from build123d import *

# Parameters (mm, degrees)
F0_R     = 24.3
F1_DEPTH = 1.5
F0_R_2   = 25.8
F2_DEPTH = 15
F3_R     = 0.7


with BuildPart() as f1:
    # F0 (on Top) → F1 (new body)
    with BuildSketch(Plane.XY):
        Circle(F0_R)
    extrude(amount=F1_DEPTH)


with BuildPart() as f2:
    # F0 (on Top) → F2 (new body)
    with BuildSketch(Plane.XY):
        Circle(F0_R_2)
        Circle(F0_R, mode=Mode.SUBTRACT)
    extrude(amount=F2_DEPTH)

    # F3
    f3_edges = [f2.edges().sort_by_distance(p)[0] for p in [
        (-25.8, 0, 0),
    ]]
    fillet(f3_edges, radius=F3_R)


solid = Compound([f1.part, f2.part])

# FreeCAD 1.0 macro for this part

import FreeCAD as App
import Part
import Sketcher
from FreeCAD import Vector
Q = App.Units.Quantity


def edges_at(feature, points):
    """Names of the edges that pass closest to the given points."""
    edges = feature.Shape.Edges
    near = lambda p: min(range(len(edges)), key=lambda i: edges[i].distToShape(Part.Vertex(*p))[0])
    return sorted({f"Edge{near(p) + 1}" for p in points})

doc = App.newDocument("Part")
body = doc.addObject("PartDesign::Body", "Body")

sketch1 = body.newObject("Sketcher::SketchObject", "Sketch")
sketch1.AttachmentSupport = (doc.getObject("XY_Plane"), [""])
sketch1.MapMode = "FlatFace"
sketch1.addGeometry(Part.Circle(Vector(0, 0, 0), Vector(0, 0, 1), 24.3), False)
sketch1.addConstraint([
    Sketcher.Constraint("Coincident", 0, 3, -1, 1),
    Sketcher.Constraint("Diameter", 0, Q("48.6 mm")),
])
pad1 = body.newObject("PartDesign::Pad", "Pad")
pad1.Profile = sketch1
pad1.Length = 1.5
body2 = doc.addObject("PartDesign::Body", "Body001")

sketch2 = body2.newObject("Sketcher::SketchObject", "Sketch001")
sketch2.AttachmentSupport = (doc.getObject("XY_Plane001"), [""])
sketch2.MapMode = "FlatFace"
sketch2.addGeometry([
    Part.Circle(Vector(0, 0, 0), Vector(0, 0, 1), 25.8),
    Part.Circle(Vector(0, 0, 0), Vector(0, 0, 1), 24.3),
], False)
sketch2.addConstraint([
    Sketcher.Constraint("Coincident", 0, 3, -1, 1),
    Sketcher.Constraint("Coincident", 1, 3, -1, 1),
    Sketcher.Constraint("Diameter", 0, Q("51.6 mm")),
    Sketcher.Constraint("Diameter", 1, Q("48.6 mm")),
])
pad2 = body2.newObject("PartDesign::Pad", "Pad001")
pad2.Profile = sketch2
pad2.Length = 15
doc.recompute()

fillet = body2.newObject("PartDesign::Fillet", "Fillet")
fillet.Base = (pad2, edges_at(pad2, [(-25.8, 0, 0)]))
fillet.Radius = 0.7

doc.recompute()
